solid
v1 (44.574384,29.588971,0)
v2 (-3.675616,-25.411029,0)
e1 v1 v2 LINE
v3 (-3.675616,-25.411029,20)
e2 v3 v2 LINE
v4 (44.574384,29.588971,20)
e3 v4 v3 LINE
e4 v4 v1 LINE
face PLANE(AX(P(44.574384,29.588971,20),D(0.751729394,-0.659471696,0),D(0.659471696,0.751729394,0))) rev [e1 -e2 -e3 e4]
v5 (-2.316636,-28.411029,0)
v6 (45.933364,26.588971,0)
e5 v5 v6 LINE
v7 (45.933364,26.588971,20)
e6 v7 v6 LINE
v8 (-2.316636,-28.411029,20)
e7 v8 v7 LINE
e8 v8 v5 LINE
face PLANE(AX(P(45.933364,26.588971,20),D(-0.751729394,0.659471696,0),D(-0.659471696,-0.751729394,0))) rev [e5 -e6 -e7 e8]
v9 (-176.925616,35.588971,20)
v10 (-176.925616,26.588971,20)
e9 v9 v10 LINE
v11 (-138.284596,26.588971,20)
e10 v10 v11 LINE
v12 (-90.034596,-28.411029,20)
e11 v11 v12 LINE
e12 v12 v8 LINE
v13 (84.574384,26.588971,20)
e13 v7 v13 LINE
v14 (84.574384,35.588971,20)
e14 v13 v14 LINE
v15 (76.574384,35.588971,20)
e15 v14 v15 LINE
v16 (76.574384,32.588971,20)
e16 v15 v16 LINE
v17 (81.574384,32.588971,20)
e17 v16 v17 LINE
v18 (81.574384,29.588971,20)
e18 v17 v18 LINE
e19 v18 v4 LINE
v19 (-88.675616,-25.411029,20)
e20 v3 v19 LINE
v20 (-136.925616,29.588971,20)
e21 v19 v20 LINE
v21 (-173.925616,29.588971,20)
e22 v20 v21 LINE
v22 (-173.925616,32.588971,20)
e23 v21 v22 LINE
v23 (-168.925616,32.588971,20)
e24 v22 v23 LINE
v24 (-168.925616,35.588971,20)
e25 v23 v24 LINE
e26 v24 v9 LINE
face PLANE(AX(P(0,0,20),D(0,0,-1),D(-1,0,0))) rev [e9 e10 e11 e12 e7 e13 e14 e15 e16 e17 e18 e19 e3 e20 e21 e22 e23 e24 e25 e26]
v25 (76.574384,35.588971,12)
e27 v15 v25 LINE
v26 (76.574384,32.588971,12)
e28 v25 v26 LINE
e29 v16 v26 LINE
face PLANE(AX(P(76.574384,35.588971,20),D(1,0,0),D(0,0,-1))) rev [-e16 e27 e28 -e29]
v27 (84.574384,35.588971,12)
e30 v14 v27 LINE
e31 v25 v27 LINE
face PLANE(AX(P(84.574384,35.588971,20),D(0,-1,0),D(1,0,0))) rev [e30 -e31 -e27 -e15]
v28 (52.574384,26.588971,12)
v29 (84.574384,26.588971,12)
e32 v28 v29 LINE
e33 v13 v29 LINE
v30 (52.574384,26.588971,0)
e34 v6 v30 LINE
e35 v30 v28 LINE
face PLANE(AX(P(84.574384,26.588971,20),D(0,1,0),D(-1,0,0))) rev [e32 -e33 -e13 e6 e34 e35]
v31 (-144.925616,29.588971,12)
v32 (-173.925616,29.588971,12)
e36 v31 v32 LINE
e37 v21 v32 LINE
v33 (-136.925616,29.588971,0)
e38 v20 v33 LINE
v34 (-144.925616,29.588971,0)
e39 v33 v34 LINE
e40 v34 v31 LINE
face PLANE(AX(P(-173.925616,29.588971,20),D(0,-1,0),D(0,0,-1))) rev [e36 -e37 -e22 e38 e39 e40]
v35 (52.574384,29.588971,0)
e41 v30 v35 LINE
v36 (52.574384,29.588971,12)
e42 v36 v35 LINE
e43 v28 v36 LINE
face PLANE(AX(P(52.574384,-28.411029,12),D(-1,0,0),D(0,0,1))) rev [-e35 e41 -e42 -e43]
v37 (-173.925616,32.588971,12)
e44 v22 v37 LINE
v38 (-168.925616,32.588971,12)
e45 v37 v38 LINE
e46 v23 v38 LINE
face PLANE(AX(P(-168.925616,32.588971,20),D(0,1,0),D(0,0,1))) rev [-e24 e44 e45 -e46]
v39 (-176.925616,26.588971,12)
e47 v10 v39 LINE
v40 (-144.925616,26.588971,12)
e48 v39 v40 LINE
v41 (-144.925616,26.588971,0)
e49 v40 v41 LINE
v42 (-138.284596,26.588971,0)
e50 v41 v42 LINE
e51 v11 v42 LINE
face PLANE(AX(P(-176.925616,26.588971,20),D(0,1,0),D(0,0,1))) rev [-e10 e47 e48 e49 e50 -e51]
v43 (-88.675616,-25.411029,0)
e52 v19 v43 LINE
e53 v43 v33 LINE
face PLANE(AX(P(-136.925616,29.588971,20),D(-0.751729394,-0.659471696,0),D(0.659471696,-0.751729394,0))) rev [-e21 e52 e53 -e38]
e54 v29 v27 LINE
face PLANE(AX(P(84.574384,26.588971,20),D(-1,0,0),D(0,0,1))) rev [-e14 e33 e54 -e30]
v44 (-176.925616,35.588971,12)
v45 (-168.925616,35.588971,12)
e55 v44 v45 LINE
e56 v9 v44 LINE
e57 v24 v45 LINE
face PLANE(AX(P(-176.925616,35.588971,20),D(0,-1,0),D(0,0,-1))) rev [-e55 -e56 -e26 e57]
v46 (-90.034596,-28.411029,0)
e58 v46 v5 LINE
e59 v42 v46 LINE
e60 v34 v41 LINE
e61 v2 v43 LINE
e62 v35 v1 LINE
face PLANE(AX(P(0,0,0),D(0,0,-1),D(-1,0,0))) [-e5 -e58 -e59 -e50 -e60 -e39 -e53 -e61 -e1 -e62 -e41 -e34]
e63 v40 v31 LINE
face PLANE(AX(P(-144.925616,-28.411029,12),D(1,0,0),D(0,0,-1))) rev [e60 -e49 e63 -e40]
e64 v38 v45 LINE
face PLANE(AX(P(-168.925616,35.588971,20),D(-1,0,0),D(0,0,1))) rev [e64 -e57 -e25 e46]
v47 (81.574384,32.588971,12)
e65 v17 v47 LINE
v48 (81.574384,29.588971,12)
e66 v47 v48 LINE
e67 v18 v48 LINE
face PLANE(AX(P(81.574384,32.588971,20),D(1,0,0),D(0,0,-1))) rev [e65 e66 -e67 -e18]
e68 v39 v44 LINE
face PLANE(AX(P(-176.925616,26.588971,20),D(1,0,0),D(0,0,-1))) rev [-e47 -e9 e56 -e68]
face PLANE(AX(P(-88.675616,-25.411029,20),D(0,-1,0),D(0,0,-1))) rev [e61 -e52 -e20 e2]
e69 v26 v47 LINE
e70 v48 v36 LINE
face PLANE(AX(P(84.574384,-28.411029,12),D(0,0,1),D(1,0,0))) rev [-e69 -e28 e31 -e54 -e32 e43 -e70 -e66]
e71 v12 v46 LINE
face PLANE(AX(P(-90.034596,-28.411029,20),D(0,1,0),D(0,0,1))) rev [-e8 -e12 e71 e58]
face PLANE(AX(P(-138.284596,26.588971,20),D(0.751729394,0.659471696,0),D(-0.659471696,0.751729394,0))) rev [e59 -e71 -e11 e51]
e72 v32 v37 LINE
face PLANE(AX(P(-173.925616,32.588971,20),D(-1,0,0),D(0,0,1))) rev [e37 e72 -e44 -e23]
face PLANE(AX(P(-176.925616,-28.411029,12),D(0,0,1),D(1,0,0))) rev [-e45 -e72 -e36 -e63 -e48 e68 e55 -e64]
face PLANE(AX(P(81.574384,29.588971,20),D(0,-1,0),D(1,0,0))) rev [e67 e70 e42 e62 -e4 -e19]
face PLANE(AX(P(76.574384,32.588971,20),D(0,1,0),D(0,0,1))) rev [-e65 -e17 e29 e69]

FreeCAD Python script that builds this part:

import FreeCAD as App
import Part
import Sketcher
from FreeCAD import Vector
Q = App.Units.Quantity


def add_polygon(sketch, points):
    """Adds a closed chain of lines whose ends are joined by coincident constraints."""
    first, n = sketch.GeometryCount, len(points)
    for a, b in zip(points, points[1:] + points[:1]):
        sketch.addGeometry(Part.LineSegment(App.Vector(*a, 0), App.Vector(*b, 0)), False)
    for i in range(n):
        sketch.addConstraint(Sketcher.Constraint("Coincident", first + i, 2, first + (i + 1) % n, 1))

doc = App.newDocument("Part")
body = doc.addObject("PartDesign::Body", "Body")

# Sketch on XY plane
sketch1 = doc.addObject("Sketcher::SketchObject", "Sketch")
body.addObject(sketch1)
sketch1.AttachmentSupport = (doc.XY_Plane, [""])
sketch1.MapMode = "FlatFace"
add_polygon(sketch1, [(-136.9, 29.6), (-173.9, 29.6), (-173.9, 32.6), (-168.9, 32.6), (-168.9, 35.6), (-176.9, 35.6), (-176.9, 26.6), (-138.3, 26.6), (-90, -28.4), (-2.3, -28.4), (45.9, 26.6), (84.6, 26.6), (84.6, 35.6), (76.6, 35.6), (76.6, 32.6), (81.6, 32.6), (81.6, 29.6), (44.6, 29.6), (-3.7, -25.4), (-88.7, -25.4)])  # lines 0-19
sketch1.addConstraint([
    Sketcher.Constraint("Horizontal", 0),
    Sketcher.Constraint("Vertical", 1),
    Sketcher.Constraint("Horizontal", 2),
    Sketcher.Constraint("Vertical", 3),
    Sketcher.Constraint("Horizontal", 4),
    Sketcher.Constraint("Vertical", 5),
    Sketcher.Constraint("Horizontal", 6),
    Sketcher.Constraint("Horizontal", 8),
    Sketcher.Constraint("Horizontal", 10),
    Sketcher.Constraint("Vertical", 11),
    Sketcher.Constraint("Horizontal", 12),
    Sketcher.Constraint("Vertical", 13),
    Sketcher.Constraint("Horizontal", 14),
    Sketcher.Constraint("Vertical", 15),
    Sketcher.Constraint("Horizontal", 16),
    Sketcher.Constraint("Horizontal", 18),
    Sketcher.Constraint("Parallel", 9, 17),
    Sketcher.Constraint("Parallel", 7, 19),
    Sketcher.Constraint("Horizontal", 6, 2, 9, 2),
    Sketcher.Constraint("Horizontal", 4, 2, 11, 2),
    Sketcher.Constraint("Horizontal", 2, 2, 13, 2),
    Sketcher.Constraint("Horizontal", 0, 2, 15, 2),
    Sketcher.Constraint("Equal", 6, 10),
    Sketcher.Constraint("Equal", 4, 12),
    Sketcher.Constraint("Equal", 2, 14),
    Sketcher.Constraint("Equal", 0, 16),
    Sketcher.Constraint("Equal", 1, 3),
    Sketcher.Constraint("Equal", 7, 9),
    Sketcher.Constraint("Equal", 9, 17),
    Sketcher.Constraint("DistanceX", 0, 2, 0, 1, Q("37 mm")),
    Sketcher.Constraint("DistanceX", 2, 1, 2, 2, Q("5 mm")),
    Sketcher.Constraint("DistanceX", 4, 2, 4, 1, Q("8 mm")),
    Sketcher.Constraint("DistanceX", 18, 2, 18, 1, Q("85 mm")),
    Sketcher.Constraint("DistanceY", 1, 1, 1, 2, Q("3 mm")),
    Sketcher.Constraint("DistanceY", 5, 2, 5, 1, Q("9 mm")),
    Sketcher.Constraint("DistanceY", 7, 2, 6, 2, Q("55 mm")),
    Sketcher.Constraint("DistanceX", 2, 2, 10, 2, Q("253.5 mm")),
    Sketcher.Constraint("DistanceX", 6, 1, 6, 2, Q("38.64102 mm")),
    Sketcher.Constraint("DistanceY", -1, 1, 0, 2, Q("29.588971 mm")),
    Sketcher.Constraint("DistanceX", 0, 2, -1, 1, Q("173.925616 mm")),
])
pad1 = doc.addObject("PartDesign::Pad", "Pad")
body.addObject(pad1)
pad1.Profile = sketch1
pad1.Length = 20

# Sketch on XZ plane
sketch2 = doc.addObject("Sketcher::SketchObject", "Sketch001")
body.addObject(sketch2)
sketch2.AttachmentSupport = (doc.XZ_Plane, [""])
sketch2.MapMode = "FlatFace"
sketch2.AttachmentOffset = App.Placement(Vector(0, 0, -35.588971), App.Rotation())
add_polygon(sketch2, [(-177, -12), (-177, 12), (-145, 12), (-145, -12)])  # lines 0-3
add_polygon(sketch2, [(53, -12), (53, 12), (85, 12), (85, -12)])  # lines 4-7
sketch2.addConstraint([
    Sketcher.Constraint("Vertical", 0),
    Sketcher.Constraint("Horizontal", 1),
    Sketcher.Constraint("Vertical", 2),
    Sketcher.Constraint("Horizontal", 3),
    Sketcher.Constraint("Vertical", 4),
    Sketcher.Constraint("Horizontal", 5),
    Sketcher.Constraint("Vertical", 6),
    Sketcher.Constraint("Horizontal", 7),
    Sketcher.Constraint("Horizontal", 1, 2, 4, 2),
    Sketcher.Constraint("Horizontal", 3, 2, 6, 2),
    Sketcher.Constraint("Equal", 3, 5),
    Sketcher.Constraint("DistanceX", 1, 1, 1, 2, Q("32 mm")),
    Sketcher.Constraint("DistanceY", 0, 1, 0, 2, Q("24 mm")),
    Sketcher.Constraint("DistanceY", -1, 1, 0, 2, Q("12 mm")),
    Sketcher.Constraint("DistanceX", 1, 2, 4, 2, Q("197.5 mm")),
    Sketcher.Constraint("DistanceX", 0, 2, -1, 1, Q("176.925616 mm")),
])
pocket1 = doc.addObject("PartDesign::Pocket", "Pocket")
body.addObject(pocket1)
pocket1.Profile = sketch2
pocket1.Type = "ThroughAll"
pocket1.Reversed = True

doc.recompute()
